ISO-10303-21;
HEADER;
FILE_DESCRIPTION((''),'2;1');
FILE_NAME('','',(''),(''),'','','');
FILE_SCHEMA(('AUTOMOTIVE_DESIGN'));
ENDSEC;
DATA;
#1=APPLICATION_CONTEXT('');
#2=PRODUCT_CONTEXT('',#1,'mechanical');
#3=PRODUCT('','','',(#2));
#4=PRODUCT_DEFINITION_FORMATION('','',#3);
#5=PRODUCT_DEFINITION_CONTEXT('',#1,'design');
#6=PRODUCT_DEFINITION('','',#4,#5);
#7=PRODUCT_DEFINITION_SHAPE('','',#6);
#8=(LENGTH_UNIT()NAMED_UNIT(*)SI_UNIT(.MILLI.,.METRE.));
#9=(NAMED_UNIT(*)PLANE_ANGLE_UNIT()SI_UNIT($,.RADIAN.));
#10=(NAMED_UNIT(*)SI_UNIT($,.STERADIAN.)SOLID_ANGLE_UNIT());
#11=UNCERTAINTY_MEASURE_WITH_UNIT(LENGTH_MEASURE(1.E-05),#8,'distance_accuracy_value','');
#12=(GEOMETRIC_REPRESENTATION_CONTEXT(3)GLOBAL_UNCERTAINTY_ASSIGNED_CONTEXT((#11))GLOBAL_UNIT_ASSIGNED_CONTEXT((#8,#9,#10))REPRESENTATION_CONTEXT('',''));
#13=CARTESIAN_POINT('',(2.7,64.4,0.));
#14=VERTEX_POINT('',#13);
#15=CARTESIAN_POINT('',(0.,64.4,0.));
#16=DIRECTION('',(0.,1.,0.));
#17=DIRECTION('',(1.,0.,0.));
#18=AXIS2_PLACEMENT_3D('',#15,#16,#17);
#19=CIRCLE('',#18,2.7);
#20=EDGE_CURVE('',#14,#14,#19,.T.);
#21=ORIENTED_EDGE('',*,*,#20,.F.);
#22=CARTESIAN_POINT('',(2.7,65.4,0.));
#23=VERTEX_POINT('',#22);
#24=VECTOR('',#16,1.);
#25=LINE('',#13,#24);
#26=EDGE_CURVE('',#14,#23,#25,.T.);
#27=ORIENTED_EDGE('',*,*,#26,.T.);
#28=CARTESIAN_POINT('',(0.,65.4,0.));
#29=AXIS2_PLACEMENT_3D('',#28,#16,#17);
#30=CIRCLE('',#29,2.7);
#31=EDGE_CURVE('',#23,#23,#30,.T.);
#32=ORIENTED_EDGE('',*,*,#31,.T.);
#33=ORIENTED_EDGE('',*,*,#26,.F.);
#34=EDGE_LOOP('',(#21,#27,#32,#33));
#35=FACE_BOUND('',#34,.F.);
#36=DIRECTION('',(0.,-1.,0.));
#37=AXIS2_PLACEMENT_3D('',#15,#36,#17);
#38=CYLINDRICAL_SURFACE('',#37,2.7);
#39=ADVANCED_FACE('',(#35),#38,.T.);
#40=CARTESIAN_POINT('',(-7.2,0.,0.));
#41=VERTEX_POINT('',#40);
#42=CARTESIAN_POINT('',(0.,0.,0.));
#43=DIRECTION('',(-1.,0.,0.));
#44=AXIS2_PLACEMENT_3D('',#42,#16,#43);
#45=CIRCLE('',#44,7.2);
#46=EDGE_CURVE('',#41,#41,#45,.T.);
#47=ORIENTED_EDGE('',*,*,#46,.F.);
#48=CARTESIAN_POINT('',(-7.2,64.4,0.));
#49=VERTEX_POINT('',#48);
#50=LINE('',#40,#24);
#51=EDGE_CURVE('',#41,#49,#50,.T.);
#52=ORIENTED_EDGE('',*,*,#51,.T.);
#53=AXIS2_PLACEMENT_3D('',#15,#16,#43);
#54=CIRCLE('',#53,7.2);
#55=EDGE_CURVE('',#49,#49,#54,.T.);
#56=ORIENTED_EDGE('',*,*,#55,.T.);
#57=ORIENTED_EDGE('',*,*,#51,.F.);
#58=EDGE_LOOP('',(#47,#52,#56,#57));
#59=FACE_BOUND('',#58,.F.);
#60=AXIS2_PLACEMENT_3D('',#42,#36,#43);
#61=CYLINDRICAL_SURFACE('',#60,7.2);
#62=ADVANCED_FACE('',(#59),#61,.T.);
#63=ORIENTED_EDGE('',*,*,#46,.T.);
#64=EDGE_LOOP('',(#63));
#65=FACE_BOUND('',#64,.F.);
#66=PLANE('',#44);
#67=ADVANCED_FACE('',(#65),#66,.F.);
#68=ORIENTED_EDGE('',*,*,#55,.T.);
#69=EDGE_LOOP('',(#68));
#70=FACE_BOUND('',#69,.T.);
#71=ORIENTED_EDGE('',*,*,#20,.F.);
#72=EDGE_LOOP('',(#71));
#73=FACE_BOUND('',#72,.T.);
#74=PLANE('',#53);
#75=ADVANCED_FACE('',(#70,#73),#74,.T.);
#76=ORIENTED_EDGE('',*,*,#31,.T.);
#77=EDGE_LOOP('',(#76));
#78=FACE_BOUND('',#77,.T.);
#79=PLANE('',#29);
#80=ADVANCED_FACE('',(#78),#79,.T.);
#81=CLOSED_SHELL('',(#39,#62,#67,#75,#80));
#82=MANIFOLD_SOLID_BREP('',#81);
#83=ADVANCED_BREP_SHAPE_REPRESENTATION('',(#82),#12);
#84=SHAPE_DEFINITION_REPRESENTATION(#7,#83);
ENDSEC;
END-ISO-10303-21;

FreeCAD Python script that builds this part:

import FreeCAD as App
import Part
import Sketcher
from FreeCAD import Vector
Q = App.Units.Quantity

doc = App.newDocument("Part")
body = doc.addObject("PartDesign::Body", "Body")

# Sketch on XZ plane
sketch1 = body.newObject("Sketcher::SketchObject", "Sketch")
sketch1.AttachmentSupport = (doc.getObject("XZ_Plane"), [""])
sketch1.MapMode = "FlatFace"
sketch1.addGeometry(Part.Circle(Vector(0, 0, 0), Vector(0, 0, 1), 7.2), False)
sketch1.addConstraint(Sketcher.Constraint("Coincident", 0, 3, -1, 1))
sketch1.addConstraint(Sketcher.Constraint("Diameter", 0, Q("14.4 mm")))
pad1 = body.newObject("PartDesign::Pad", "Pad")
pad1.Profile = sketch1
pad1.Length = 64.4
pad1.Reversed = True

# Sketch on XZ plane
sketch2 = body.newObject("Sketcher::SketchObject", "Sketch001")
sketch2.AttachmentSupport = (doc.getObject("XZ_Plane"), [""])
sketch2.MapMode = "FlatFace"
sketch2.AttachmentOffset = App.Placement(Vector(0, 0, -64.4), App.Rotation())
sketch2.addGeometry(Part.Circle(Vector(0, 0, 0), Vector(0, 0, 1), 2.7), False)
sketch2.addConstraint(Sketcher.Constraint("Coincident", 0, 3, -1, 1))
sketch2.addConstraint(Sketcher.Constraint("Diameter", 0, Q("5.4 mm")))
pad2 = body.newObject("PartDesign::Pad", "Pad001")
pad2.Profile = sketch2
pad2.Length = 1
pad2.Reversed = True

doc.recompute()
